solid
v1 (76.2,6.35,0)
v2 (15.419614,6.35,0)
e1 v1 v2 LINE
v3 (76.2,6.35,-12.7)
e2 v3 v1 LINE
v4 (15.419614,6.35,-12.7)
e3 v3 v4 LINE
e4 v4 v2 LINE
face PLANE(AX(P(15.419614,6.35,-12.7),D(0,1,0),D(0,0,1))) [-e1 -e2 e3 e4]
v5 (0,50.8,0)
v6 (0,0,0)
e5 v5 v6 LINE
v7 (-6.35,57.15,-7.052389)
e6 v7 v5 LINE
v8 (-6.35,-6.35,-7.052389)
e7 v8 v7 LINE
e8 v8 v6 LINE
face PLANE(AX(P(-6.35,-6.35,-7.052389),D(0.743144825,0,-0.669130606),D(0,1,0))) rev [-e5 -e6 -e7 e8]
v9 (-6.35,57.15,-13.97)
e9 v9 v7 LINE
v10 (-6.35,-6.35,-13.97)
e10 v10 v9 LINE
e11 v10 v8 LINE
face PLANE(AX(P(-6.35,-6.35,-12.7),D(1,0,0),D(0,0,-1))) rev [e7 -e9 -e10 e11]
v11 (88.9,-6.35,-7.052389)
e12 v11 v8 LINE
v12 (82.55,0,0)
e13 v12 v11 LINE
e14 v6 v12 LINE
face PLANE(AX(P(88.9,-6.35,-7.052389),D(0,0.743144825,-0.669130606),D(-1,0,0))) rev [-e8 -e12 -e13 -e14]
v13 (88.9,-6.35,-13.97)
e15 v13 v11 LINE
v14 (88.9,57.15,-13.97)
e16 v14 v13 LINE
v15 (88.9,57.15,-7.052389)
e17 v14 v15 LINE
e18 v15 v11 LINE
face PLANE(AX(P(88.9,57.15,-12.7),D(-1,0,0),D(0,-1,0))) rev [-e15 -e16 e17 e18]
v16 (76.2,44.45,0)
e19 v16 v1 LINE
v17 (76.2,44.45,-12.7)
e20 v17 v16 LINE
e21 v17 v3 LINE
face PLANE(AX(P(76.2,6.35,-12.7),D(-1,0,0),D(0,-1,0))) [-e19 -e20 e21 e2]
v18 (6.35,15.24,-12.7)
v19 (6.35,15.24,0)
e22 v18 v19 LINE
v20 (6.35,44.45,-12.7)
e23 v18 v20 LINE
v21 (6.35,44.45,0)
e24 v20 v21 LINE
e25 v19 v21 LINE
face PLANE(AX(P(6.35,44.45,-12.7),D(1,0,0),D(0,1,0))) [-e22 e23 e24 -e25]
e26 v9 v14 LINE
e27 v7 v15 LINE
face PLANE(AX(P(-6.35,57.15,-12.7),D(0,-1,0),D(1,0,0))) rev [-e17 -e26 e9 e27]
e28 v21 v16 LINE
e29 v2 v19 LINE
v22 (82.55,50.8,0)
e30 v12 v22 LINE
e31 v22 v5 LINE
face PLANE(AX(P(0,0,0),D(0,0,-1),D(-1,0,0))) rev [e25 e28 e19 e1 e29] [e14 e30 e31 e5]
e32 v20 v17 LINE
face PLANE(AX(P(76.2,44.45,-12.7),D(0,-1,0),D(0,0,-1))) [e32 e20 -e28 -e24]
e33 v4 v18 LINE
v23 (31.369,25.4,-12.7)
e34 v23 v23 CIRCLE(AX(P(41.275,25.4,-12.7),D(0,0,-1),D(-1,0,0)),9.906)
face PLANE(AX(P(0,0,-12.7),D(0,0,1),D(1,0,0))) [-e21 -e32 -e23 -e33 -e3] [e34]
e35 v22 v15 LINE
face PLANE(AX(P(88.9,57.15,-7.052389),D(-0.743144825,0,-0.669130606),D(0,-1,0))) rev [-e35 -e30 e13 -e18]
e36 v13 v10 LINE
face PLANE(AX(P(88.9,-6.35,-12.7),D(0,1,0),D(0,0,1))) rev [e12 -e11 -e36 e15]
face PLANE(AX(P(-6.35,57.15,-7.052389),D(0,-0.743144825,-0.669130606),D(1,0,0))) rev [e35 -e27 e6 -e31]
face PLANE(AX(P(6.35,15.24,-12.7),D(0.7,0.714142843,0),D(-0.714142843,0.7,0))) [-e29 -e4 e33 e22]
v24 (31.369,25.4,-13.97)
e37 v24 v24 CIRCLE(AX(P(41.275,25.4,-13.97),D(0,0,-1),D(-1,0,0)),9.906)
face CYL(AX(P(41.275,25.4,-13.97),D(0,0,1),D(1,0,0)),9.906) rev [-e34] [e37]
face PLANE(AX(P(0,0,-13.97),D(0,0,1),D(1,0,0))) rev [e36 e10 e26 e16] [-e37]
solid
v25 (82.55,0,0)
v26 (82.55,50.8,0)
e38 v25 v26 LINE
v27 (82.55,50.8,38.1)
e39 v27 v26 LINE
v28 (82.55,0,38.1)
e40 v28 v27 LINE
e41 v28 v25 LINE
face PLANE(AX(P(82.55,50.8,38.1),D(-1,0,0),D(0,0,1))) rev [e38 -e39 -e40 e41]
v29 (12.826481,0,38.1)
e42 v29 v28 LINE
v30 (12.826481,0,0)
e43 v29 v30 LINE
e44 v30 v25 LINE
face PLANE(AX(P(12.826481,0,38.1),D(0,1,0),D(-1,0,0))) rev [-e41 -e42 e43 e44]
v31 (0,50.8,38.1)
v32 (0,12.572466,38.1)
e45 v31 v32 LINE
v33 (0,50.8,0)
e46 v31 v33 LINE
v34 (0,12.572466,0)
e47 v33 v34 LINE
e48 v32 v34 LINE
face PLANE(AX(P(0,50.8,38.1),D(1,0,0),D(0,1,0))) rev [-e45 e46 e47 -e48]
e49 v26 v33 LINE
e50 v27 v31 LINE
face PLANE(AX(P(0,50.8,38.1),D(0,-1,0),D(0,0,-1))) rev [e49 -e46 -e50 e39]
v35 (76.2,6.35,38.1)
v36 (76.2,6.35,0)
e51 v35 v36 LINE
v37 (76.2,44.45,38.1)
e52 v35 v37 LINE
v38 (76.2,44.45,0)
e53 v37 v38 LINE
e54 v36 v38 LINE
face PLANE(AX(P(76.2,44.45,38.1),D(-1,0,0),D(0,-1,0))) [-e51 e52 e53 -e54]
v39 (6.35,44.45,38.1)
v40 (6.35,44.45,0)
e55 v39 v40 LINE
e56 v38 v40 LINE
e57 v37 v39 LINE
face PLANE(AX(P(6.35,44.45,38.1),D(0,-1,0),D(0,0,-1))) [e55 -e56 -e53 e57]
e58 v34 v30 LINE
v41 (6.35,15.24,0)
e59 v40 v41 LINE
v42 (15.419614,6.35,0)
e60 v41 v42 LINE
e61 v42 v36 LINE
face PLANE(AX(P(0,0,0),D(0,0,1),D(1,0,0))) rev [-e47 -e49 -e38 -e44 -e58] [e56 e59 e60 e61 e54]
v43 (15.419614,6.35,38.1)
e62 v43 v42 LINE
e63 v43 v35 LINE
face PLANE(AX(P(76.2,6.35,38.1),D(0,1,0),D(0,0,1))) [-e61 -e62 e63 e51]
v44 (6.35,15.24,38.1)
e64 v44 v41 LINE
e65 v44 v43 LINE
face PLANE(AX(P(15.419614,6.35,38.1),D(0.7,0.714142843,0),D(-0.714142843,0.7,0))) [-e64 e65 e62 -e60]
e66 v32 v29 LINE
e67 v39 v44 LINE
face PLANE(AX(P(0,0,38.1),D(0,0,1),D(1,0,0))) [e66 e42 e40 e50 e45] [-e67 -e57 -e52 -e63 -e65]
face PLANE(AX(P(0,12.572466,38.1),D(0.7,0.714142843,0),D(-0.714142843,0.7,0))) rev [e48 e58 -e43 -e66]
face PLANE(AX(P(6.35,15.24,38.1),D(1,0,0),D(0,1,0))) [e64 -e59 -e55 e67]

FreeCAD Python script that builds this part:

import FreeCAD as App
import Part
import Sketcher

V = App.Vector
Q = App.Units.Quantity


def edges_at(feature, points):
    """Names of the edges that pass closest to the given points."""
    edges = feature.Shape.Edges
    near = lambda p: min(range(len(edges)), key=lambda i: edges[i].distToShape(Part.Vertex(*p))[0])
    return sorted({f"Edge{near(p) + 1}" for p in points})

doc = App.newDocument("Part")
body = doc.addObject("PartDesign::Body", "Body")

# Sketch on XY plane
sketch1 = body.newObject("Sketcher::SketchObject", "Sketch")
sketch1.AttachmentSupport = (doc.getObject("XY_Plane"), [""])
sketch1.MapMode = "FlatFace"
sketch1.addGeometry([
    Part.LineSegment(V(82.55, 50.8, 0), V(0, 50.8, 0)),  # 0
    Part.LineSegment(V(0, 50.8, 0), V(0, 12.572466, 0)),  # 1
    Part.LineSegment(V(0, 12.572466, 0), V(12.826481, 0, 0)),  # 2
    Part.LineSegment(V(12.826481, 0, 0), V(82.55, 0, 0)),  # 3
    Part.LineSegment(V(82.55, 0, 0), V(82.55, 50.8, 0)),  # 4
    Part.LineSegment(V(6.35, 44.45, 0), V(76.2, 44.45, 0)),  # 5
    Part.LineSegment(V(76.2, 44.45, 0), V(76.2, 6.35, 0)),  # 6
    Part.LineSegment(V(76.2, 6.35, 0), V(15.419614, 6.35, 0)),  # 7
    Part.LineSegment(V(15.419614, 6.35, 0), V(6.35, 15.24, 0)),  # 8
    Part.LineSegment(V(6.35, 15.24, 0), V(6.35, 44.45, 0)),  # 9
], False)
sketch1.addConstraint([
    Sketcher.Constraint("Coincident", 0, 2, 1, 1),
    Sketcher.Constraint("Coincident", 1, 2, 2, 1),
    Sketcher.Constraint("Coincident", 2, 2, 3, 1),
    Sketcher.Constraint("Coincident", 3, 2, 4, 1),
    Sketcher.Constraint("Coincident", 4, 2, 0, 1),
    Sketcher.Constraint("Coincident", 5, 2, 6, 1),
    Sketcher.Constraint("Coincident", 6, 2, 7, 1),
    Sketcher.Constraint("Coincident", 7, 2, 8, 1),
    Sketcher.Constraint("Coincident", 8, 2, 9, 1),
    Sketcher.Constraint("Coincident", 9, 2, 5, 1),
    Sketcher.Constraint("Horizontal", 0),
    Sketcher.Constraint("Vertical", 1),
    Sketcher.Constraint("Horizontal", 3),
    Sketcher.Constraint("Vertical", 4),
    Sketcher.Constraint("Horizontal", 5),
    Sketcher.Constraint("Vertical", 6),
    Sketcher.Constraint("Horizontal", 7),
    Sketcher.Constraint("Vertical", 9),
    Sketcher.Constraint("PointOnObject", 0, 2, -2),
    Sketcher.Constraint("PointOnObject", 2, 2, -1),
    Sketcher.Constraint("Parallel", 2, 8),
    Sketcher.Constraint("DistanceY", 4, 1, 4, 2, Q("2 in")),
    Sketcher.Constraint("DistanceY", 6, 2, 6, 1, Q("1.5 in")),
    Sketcher.Constraint("DistanceX", -1, 1, 5, 2, Q("3 in")),
    Sketcher.Constraint("Distance", 8, Q("0.5 in")),
    Sketcher.Constraint("DistanceX", 0, 2, 0, 1, Q("3.25 in")),
    Sketcher.Constraint("DistanceX", 5, 1, 5, 2, Q("2.75 in")),
    Sketcher.Constraint("DistanceY", 9, 1, 9, 2, Q("1.15 in")),
    Sketcher.Constraint("DistanceY", -1, 1, 8, 2, Q("0.6 in")),
    Sketcher.Constraint("DistanceX", 3, 1, 3, 2, 69.723519),
])
pad1 = body.newObject("PartDesign::Pad", "Pad")
pad1.Profile = sketch1
pad1.Length = Q("1.5 in")
body2 = doc.addObject("PartDesign::Body", "Body001")

# Sketch on XY plane
sketch2 = body2.newObject("Sketcher::SketchObject", "Sketch001")
sketch2.AttachmentSupport = (doc.getObject("XY_Plane001"), [""])
sketch2.MapMode = "FlatFace"
sketch2.addGeometry([
    Part.LineSegment(V(88.9, 57.15, 0), V(88.9, -6.35, 0)),  # 0
    Part.LineSegment(V(88.9, -6.35, 0), V(-6.35, -6.35, 0)),  # 1
    Part.LineSegment(V(-6.35, -6.35, 0), V(-6.35, 57.15, 0)),  # 2
    Part.LineSegment(V(-6.35, 57.15, 0), V(88.9, 57.15, 0)),  # 3
    Part.LineSegment(V(76.2, 44.45, 0), V(6.35, 44.45, 0)),  # 4
    Part.LineSegment(V(6.35, 44.45, 0), V(6.35, 15.24, 0)),  # 5
    Part.LineSegment(V(6.35, 15.24, 0), V(15.419614, 6.35, 0)),  # 6
    Part.LineSegment(V(15.419614, 6.35, 0), V(76.2, 6.35, 0)),  # 7
    Part.LineSegment(V(76.2, 6.35, 0), V(76.2, 44.45, 0)),  # 8
], False)
sketch2.addConstraint([
    Sketcher.Constraint("Coincident", 0, 2, 1, 1),
    Sketcher.Constraint("Coincident", 1, 2, 2, 1),
    Sketcher.Constraint("Coincident", 2, 2, 3, 1),
    Sketcher.Constraint("Coincident", 3, 2, 0, 1),
    Sketcher.Constraint("Coincident", 4, 2, 5, 1),
    Sketcher.Constraint("Coincident", 5, 2, 6, 1),
    Sketcher.Constraint("Coincident", 6, 2, 7, 1),
    Sketcher.Constraint("Coincident", 7, 2, 8, 1),
    Sketcher.Constraint("Coincident", 8, 2, 4, 1),
    Sketcher.Constraint("Vertical", 0),
    Sketcher.Constraint("Horizontal", 1),
    Sketcher.Constraint("Vertical", 2),
    Sketcher.Constraint("Horizontal", 3),
    Sketcher.Constraint("Horizontal", 4),
    Sketcher.Constraint("Vertical", 5),
    Sketcher.Constraint("Horizontal", 7),
    Sketcher.Constraint("Vertical", 8),
    Sketcher.Constraint("DistanceY", 0, 2, 0, 1, Q("2.5 in")),
    Sketcher.Constraint("DistanceY", 8, 1, 8, 2, Q("1.5 in")),
    Sketcher.Constraint("DistanceX", -1, 1, 7, 2, Q("3 in")),
    Sketcher.Constraint("DistanceY", 1, 2, 4, 2, Q("2 in")),
    Sketcher.Constraint("Distance", 6, Q("0.5 in")),
    Sketcher.Constraint("DistanceX", 1, 2, 1, 1, Q("3.75 in")),
    Sketcher.Constraint("DistanceX", 4, 2, 4, 1, Q("2.75 in")),
    Sketcher.Constraint("DistanceY", 5, 2, 5, 1, Q("1.15 in")),
    Sketcher.Constraint("DistanceX", -1, 1, 0, 2, Q("3.5 in")),
    Sketcher.Constraint("DistanceY", -1, 1, 5, 2, Q("0.6 in")),
])
pad2 = body2.newObject("PartDesign::Pad", "Pad001")
pad2.Profile = sketch2
pad2.Length = Q("0.5 in")
pad2.Reversed = True
doc.recompute()

chamfer = body2.newObject("PartDesign::Chamfer", "Chamfer")
chamfer.Base = (pad2, edges_at(pad2, [
    (-6.35, 25.4, 0),
    (41.275, -6.35, 0),
    (88.9, 25.4, 0),
    (41.275, 57.15, 0),
]))
chamfer.ChamferType = "Two distances"
chamfer.Size = Q("0.25 in")
chamfer.Size2 = 7.052389
chamfer.FlipDirection = True

# Sketch on XY plane
sketch3 = body2.newObject("Sketcher::SketchObject", "Sketch002")
sketch3.AttachmentSupport = (doc.getObject("XY_Plane001"), [""])
sketch3.MapMode = "FlatFace"
sketch3.AttachmentOffset = App.Placement(V(0, 0, -0.5 * 25.4), App.Rotation())
sketch3.addGeometry([
    Part.LineSegment(V(88.9, 57.15, 0), V(88.9, -6.35, 0)),  # 0
    Part.LineSegment(V(88.9, -6.35, 0), V(-6.35, -6.35, 0)),  # 1
    Part.LineSegment(V(-6.35, -6.35, 0), V(-6.35, 57.15, 0)),  # 2
    Part.LineSegment(V(-6.35, 57.15, 0), V(88.9, 57.15, 0)),  # 3
    Part.Circle(V(41.275, 25.4, 0), V(0, 0, 1), 9.906),  # 4
], False)
sketch3.addConstraint([
    Sketcher.Constraint("Coincident", 0, 2, 1, 1),
    Sketcher.Constraint("Coincident", 1, 2, 2, 1),
    Sketcher.Constraint("Coincident", 2, 2, 3, 1),
    Sketcher.Constraint("Coincident", 3, 2, 0, 1),
    Sketcher.Constraint("Vertical", 0),
    Sketcher.Constraint("Horizontal", 1),
    Sketcher.Constraint("Vertical", 2),
    Sketcher.Constraint("Horizontal", 3),
    Sketcher.Constraint("Diameter", 4, Q("0.78 in")),
    Sketcher.Constraint("DistanceY", 0, 2, 0, 1, Q("2.5 in")),
    Sketcher.Constraint("DistanceY", -1, 1, 4, 3, Q("1 in")),
    Sketcher.Constraint("DistanceX", 1, 2, 1, 1, Q("3.75 in")),
    Sketcher.Constraint("DistanceX", -1, 1, 0, 2, Q("3.5 in")),
    Sketcher.Constraint("DistanceY", 0, 2, -1, 1, Q("0.25 in")),
    Sketcher.Constraint("DistanceX", -1, 1, 4, 3, Q("1.625 in")),
])
pad3 = body2.newObject("PartDesign::Pad", "Pad002")
pad3.Profile = sketch3
pad3.Length = Q("0.05 in")
pad3.Reversed = True

doc.recompute()
